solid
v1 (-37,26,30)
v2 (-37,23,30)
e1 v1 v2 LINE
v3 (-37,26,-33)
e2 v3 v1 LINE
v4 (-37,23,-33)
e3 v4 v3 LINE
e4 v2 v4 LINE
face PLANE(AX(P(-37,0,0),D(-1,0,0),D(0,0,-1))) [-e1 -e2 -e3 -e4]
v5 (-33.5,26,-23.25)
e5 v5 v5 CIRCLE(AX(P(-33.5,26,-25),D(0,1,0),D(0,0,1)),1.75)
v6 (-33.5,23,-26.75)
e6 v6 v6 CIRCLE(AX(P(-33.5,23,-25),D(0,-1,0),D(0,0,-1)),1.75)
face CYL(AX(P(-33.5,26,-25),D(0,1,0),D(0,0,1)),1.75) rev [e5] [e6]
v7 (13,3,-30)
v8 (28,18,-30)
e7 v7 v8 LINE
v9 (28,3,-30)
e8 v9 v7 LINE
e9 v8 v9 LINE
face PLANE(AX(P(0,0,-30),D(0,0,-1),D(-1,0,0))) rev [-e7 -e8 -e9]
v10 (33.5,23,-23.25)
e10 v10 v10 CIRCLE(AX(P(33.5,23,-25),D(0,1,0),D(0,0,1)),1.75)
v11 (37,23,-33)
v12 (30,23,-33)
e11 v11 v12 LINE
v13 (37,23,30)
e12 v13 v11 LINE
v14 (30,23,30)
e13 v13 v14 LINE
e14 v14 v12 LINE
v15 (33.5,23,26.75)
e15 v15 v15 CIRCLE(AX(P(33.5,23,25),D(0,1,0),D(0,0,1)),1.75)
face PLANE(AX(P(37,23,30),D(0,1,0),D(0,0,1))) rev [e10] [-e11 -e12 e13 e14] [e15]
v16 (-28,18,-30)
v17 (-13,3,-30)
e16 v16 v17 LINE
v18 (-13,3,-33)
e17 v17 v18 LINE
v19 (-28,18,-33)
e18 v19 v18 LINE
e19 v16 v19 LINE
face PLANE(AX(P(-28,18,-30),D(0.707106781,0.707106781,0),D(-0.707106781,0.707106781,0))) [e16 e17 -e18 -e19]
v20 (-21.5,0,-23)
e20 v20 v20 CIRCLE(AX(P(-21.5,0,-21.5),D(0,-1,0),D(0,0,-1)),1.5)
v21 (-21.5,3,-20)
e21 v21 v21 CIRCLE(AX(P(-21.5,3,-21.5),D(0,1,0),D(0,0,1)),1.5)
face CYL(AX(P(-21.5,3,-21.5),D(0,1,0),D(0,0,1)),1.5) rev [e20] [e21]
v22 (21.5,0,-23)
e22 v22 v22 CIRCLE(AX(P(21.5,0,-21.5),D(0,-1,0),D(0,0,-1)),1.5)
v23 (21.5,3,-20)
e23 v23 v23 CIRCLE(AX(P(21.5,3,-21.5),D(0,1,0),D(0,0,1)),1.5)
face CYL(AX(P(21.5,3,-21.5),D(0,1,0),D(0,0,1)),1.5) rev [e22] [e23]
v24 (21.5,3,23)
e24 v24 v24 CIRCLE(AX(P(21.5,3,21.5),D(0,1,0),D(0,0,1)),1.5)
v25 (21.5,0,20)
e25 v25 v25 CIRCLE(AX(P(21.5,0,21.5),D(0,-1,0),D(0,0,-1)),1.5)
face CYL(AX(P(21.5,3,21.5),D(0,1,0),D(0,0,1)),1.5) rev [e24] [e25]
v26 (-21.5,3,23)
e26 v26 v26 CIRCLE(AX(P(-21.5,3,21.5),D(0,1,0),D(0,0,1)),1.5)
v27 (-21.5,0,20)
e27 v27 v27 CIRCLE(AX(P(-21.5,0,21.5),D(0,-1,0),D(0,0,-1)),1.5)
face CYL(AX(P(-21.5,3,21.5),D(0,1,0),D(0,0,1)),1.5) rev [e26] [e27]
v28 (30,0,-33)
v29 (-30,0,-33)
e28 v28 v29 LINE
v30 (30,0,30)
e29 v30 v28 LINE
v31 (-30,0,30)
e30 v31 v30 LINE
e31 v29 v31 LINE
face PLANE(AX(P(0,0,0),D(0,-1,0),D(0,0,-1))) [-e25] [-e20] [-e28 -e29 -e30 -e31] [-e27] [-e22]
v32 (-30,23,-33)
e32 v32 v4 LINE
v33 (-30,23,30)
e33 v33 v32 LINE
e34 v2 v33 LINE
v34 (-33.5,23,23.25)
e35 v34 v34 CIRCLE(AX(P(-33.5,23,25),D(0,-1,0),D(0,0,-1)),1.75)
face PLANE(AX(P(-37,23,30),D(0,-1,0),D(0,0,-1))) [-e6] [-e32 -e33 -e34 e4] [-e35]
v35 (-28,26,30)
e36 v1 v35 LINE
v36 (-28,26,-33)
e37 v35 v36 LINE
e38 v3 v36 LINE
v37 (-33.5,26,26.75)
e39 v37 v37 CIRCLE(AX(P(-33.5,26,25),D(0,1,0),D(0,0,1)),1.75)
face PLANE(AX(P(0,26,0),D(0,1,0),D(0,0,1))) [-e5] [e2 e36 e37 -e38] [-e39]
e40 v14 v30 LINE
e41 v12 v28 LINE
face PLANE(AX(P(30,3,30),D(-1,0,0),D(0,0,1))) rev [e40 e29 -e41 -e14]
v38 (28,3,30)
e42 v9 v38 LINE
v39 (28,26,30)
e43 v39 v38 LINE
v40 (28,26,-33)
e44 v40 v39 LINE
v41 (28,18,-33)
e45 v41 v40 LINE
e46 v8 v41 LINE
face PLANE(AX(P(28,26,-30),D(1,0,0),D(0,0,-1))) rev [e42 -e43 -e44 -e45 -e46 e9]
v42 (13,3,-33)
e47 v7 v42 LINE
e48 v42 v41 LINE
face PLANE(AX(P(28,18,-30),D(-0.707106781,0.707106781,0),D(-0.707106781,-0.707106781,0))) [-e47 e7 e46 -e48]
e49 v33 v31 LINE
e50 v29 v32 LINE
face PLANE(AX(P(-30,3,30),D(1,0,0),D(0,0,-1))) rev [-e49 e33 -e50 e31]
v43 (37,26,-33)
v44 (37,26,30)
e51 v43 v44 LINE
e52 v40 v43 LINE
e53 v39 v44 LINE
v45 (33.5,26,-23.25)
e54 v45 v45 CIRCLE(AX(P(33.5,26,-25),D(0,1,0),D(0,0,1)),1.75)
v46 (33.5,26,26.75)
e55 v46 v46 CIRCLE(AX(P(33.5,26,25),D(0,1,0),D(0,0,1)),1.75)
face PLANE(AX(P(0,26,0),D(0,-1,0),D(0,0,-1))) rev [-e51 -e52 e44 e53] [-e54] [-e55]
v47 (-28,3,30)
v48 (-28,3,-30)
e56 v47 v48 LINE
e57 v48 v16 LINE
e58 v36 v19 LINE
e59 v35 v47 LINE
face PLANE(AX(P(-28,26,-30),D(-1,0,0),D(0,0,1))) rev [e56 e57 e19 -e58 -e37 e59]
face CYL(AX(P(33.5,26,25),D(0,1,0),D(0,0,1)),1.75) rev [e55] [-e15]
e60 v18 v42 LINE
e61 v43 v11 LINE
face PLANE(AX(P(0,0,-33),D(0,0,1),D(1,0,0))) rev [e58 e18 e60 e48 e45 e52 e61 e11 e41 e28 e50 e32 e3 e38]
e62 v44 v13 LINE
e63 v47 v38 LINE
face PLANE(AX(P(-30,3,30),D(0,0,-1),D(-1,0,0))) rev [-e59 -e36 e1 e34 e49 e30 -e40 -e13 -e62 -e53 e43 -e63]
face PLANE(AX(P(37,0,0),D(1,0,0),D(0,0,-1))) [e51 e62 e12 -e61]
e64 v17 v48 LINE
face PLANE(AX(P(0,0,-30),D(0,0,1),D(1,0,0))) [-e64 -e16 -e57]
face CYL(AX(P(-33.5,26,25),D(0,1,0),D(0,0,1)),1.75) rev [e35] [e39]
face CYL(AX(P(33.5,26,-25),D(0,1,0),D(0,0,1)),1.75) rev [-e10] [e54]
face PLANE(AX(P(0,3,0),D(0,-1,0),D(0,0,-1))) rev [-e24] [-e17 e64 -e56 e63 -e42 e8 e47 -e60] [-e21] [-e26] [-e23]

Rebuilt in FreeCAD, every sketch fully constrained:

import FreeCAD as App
import Part
import Sketcher

V = App.Vector


def add_polygon(sketch, points):
    """Adds a closed chain of lines whose ends are joined by coincident constraints."""
    first, n = sketch.GeometryCount, len(points)
    for a, b in zip(points, points[1:] + points[:1]):
        sketch.addGeometry(Part.LineSegment(App.Vector(*a, 0), App.Vector(*b, 0)), False)
    for i in range(n):
        sketch.addConstraint(Sketcher.Constraint("Coincident", first + i, 2, first + (i + 1) % n, 1))

doc = App.newDocument("Part")
body = doc.addObject("PartDesign::Body", "Body")

# Sketch on XZ plane
sketch1 = body.newObject("Sketcher::SketchObject", "Sketch")
sketch1.AttachmentSupport = (doc.getObject("XZ_Plane"), [""])
sketch1.MapMode = "FlatFace"
add_polygon(sketch1, [(-30, -30), (-30, 30), (30, 30), (30, -30)])  # lines 0-3
sketch1.addConstraint([
    Sketcher.Constraint("Vertical", 0),
    Sketcher.Constraint("Horizontal", 1),
    Sketcher.Constraint("Vertical", 2),
    Sketcher.Constraint("Horizontal", 3),
    Sketcher.Constraint("Symmetric", 0, 2, 2, 2, -1, 1),
    Sketcher.Constraint("Equal", 3, 0),
    Sketcher.Constraint("DistanceX", 1, 1, 1, 2, 60.0),
])
pad1 = body.newObject("PartDesign::Pad", "Pad")
pad1.Profile = sketch1
pad1.Length = 3
pad1.Reversed = True

# Sketch on XZ plane
sketch2 = body.newObject("Sketcher::SketchObject", "Sketch001")
sketch2.AttachmentSupport = (doc.getObject("XZ_Plane"), [""])
sketch2.MapMode = "FlatFace"
sketch2.AttachmentOffset = App.Placement(V(0, 0, -3), App.Rotation())
sketch2.addGeometry([
    Part.Circle(V(-21.5, -21.5, 0), V(0, 0, 1), 1.5),
    Part.Circle(V(21.5, -21.5, 0), V(0, 0, 1), 1.5),
    Part.Circle(V(-21.5, 21.5, 0), V(0, 0, 1), 1.5),
    Part.Circle(V(21.5, 21.5, 0), V(0, 0, 1), 1.5),
], False)
sketch2.addConstraint([
    Sketcher.Constraint("Equal", 0, 1),
    Sketcher.Constraint("Equal", 1, 2),
    Sketcher.Constraint("Equal", 2, 3),
    Sketcher.Constraint("Symmetric", 1, 3, 2, 3, -1, 1),
    Sketcher.Constraint("Symmetric", 0, 3, 3, 3, -1, 1),
    Sketcher.Constraint("Symmetric", 0, 3, 1, 3, -2),
    Sketcher.Constraint("Diameter", 0, 3.0),
    Sketcher.Constraint("DistanceX", 0, 3, 1, 3, 43.0),
    Sketcher.Constraint("DistanceY", 0, 3, 2, 3, 43.0),
])
doc.recompute()
hole = body.newObject("PartDesign::Hole", "Hole")
hole.Profile = sketch2
hole.ThreadType = "None"
hole.Diameter = 3
hole.DepthType = "ThroughAll"
hole.Reversed = True

# Sketch on XZ plane
sketch3 = body.newObject("Sketcher::SketchObject", "Sketch002")
sketch3.AttachmentSupport = (doc.getObject("XZ_Plane"), [""])
sketch3.MapMode = "FlatFace"
sketch3.AttachmentOffset = App.Placement(V(0, 0, -3), App.Rotation())
add_polygon(sketch3, [(28, -30), (28, 30), (30, 30), (30, -30)])  # lines 0-3
add_polygon(sketch3, [(-30, -30), (-30, 30), (-28, 30), (-28, -30)])  # lines 4-7
sketch3.addConstraint([
    Sketcher.Constraint("Vertical", 0),
    Sketcher.Constraint("Horizontal", 1),
    Sketcher.Constraint("Vertical", 2),
    Sketcher.Constraint("Horizontal", 3),
    Sketcher.Constraint("Vertical", 4),
    Sketcher.Constraint("Horizontal", 5),
    Sketcher.Constraint("Vertical", 6),
    Sketcher.Constraint("Horizontal", 7),
    Sketcher.Constraint("Symmetric", 2, 2, 4, 2, -1, 1),
    Sketcher.Constraint("Symmetric", 0, 2, 6, 2, -1, 1),
    Sketcher.Constraint("Horizontal", 1, 2, 4, 2),
    Sketcher.Constraint("DistanceX", 1, 1, 1, 2, 2.0),
    Sketcher.Constraint("DistanceY", 0, 1, 0, 2, 60.0),
    Sketcher.Constraint("DistanceX", -1, 1, 0, 2, 28.0),
])
pad2 = body.newObject("PartDesign::Pad", "Pad001")
pad2.Profile = sketch3
pad2.Length = 23
pad2.Reversed = True

# Sketch on YZ plane
sketch4 = body.newObject("Sketcher::SketchObject", "Sketch003")
sketch4.AttachmentSupport = (doc.getObject("YZ_Plane"), [""])
sketch4.MapMode = "FlatFace"
sketch4.AttachmentOffset = App.Placement(V(0, 0, 30), App.Rotation())
add_polygon(sketch4, [(26, 30), (23, 30), (23, -30), (26, -30)])  # lines 0-3
sketch4.addConstraint([
    Sketcher.Constraint("Horizontal", 0),
    Sketcher.Constraint("Vertical", 1),
    Sketcher.Constraint("Horizontal", 2),
    Sketcher.Constraint("Vertical", 3),
    Sketcher.Constraint("DistanceX", 0, 2, 0, 1, 3.0),
    Sketcher.Constraint("DistanceY", 1, 2, 1, 1, 60.0),
    Sketcher.Constraint("DistanceX", -1, 1, 0, 2, 23.0),
    Sketcher.Constraint("DistanceY", -1, 1, 0, 2, 30.0),
])
pad3 = body.newObject("PartDesign::Pad", "Pad002")
pad3.Profile = sketch4
pad3.Length = 7

# Sketch on XZ plane
sketch5 = body.newObject("Sketcher::SketchObject", "Sketch004")
sketch5.AttachmentSupport = (doc.getObject("XZ_Plane"), [""])
sketch5.MapMode = "FlatFace"
sketch5.AttachmentOffset = App.Placement(V(0, 0, -26), App.Rotation())
sketch5.addGeometry([
    Part.Circle(V(33.5, -25, 0), V(0, 0, 1), 1.8),
    Part.Circle(V(33.5, 25, 0), V(0, 0, 1), 1.8),
], False)
sketch5.addConstraint([
    Sketcher.Constraint("Equal", 0, 1),
    Sketcher.Constraint("Symmetric", 0, 3, 1, 3, -1),
    Sketcher.Constraint("Diameter", 0, 3.5),
    Sketcher.Constraint("DistanceY", 0, 3, -1, 1, 25.0),
    Sketcher.Constraint("DistanceX", -1, 1, 0, 3, 33.5),
])
doc.recompute()
hole2 = body.newObject("PartDesign::Hole", "Hole001")
hole2.Profile = sketch5
hole2.ThreadType = "None"
hole2.Diameter = 3.5
hole2.DepthType = "ThroughAll"
hole2.Reversed = True
doc.recompute()

mirrored = body.newObject("PartDesign::Mirrored", "Mirrored")
mirrored.Originals = [pad3, hole2]
mirrored.MirrorPlane = (doc.getObject("YZ_Plane"), [""])
body.Tip = mirrored

# Sketch on XY plane
sketch6 = body.newObject("Sketcher::SketchObject", "Sketch005")
sketch6.AttachmentSupport = (doc.getObject("XY_Plane"), [""])
sketch6.MapMode = "FlatFace"
sketch6.AttachmentOffset = App.Placement(V(0, 0, -30), App.Rotation())
add_polygon(sketch6, [(28, 26), (37, 26), (37, 23), (30, 23), (30, 0), (-30, 0), (-30, 23), (-37, 23), (-37, 26), (-28, 26), (-28, 3), (28, 3)])  # lines 0-11
sketch6.addConstraint([
    Sketcher.Constraint("Horizontal", 0),
    Sketcher.Constraint("Vertical", 1),
    Sketcher.Constraint("Horizontal", 2),
    Sketcher.Constraint("Vertical", 3),
    Sketcher.Constraint("Horizontal", 4),
    Sketcher.Constraint("Vertical", 5),
    Sketcher.Constraint("Horizontal", 6),
    Sketcher.Constraint("Vertical", 7),
    Sketcher.Constraint("Horizontal", 8),
    Sketcher.Constraint("Vertical", 9),
    Sketcher.Constraint("Horizontal", 10),
    Sketcher.Constraint("Vertical", 11),
    Sketcher.Constraint("Symmetric", 3, 2, 4, 2, -1, 1),
    Sketcher.Constraint("Symmetric", 1, 2, 6, 2, -2),
    Sketcher.Constraint("Symmetric", 8, 2, 11, 2, -2),
    Sketcher.Constraint("Equal", 5, 9),
    Sketcher.Constraint("DistanceX", 0, 1, 0, 2, 9.0),
    Sketcher.Constraint("DistanceX", 2, 2, 2, 1, 7.0),
    Sketcher.Constraint("DistanceX", 4, 2, 4, 1, 60.0),
    Sketcher.Constraint("DistanceY", 1, 2, 1, 1, 3.0),
    Sketcher.Constraint("DistanceY", 3, 2, 3, 1, 23.0),
])
pad4 = body.newObject("PartDesign::Pad", "Pad003")
pad4.Profile = sketch6
pad4.Length = 3
pad4.Reversed = True

# Sketch on XY plane
sketch7 = body.newObject("Sketcher::SketchObject", "Sketch006")
sketch7.AttachmentSupport = (doc.getObject("XY_Plane"), [""])
sketch7.MapMode = "FlatFace"
sketch7.AttachmentOffset = App.Placement(V(0, 0, -33), App.Rotation())
add_polygon(sketch7, [(13, 3), (28, 18), (28, 3)])  # lines 0-2
add_polygon(sketch7, [(-28, 18), (-13, 3), (-28, 3)])  # lines 3-5
sketch7.addConstraint([
    Sketcher.Constraint("Vertical", 1),
    Sketcher.Constraint("Horizontal", 2),
    Sketcher.Constraint("Horizontal", 4),
    Sketcher.Constraint("Vertical", 5),
    Sketcher.Constraint("Symmetric", 2, 2, 3, 2, -2),
    Sketcher.Constraint("Symmetric", 0, 2, 5, 2, -2),
    Sketcher.Constraint("Perpendicular", 0, 3),
    Sketcher.Constraint("DistanceX", 2, 2, 2, 1, 15.0),
    Sketcher.Constraint("DistanceX", -1, 1, 0, 2, 28.0),
    Sketcher.Constraint("DistanceY", -1, 1, 0, 2, 18.0),
])
pad5 = body.newObject("PartDesign::Pad", "Pad004")
pad5.Profile = sketch7
pad5.Length = 3

doc.recompute()
